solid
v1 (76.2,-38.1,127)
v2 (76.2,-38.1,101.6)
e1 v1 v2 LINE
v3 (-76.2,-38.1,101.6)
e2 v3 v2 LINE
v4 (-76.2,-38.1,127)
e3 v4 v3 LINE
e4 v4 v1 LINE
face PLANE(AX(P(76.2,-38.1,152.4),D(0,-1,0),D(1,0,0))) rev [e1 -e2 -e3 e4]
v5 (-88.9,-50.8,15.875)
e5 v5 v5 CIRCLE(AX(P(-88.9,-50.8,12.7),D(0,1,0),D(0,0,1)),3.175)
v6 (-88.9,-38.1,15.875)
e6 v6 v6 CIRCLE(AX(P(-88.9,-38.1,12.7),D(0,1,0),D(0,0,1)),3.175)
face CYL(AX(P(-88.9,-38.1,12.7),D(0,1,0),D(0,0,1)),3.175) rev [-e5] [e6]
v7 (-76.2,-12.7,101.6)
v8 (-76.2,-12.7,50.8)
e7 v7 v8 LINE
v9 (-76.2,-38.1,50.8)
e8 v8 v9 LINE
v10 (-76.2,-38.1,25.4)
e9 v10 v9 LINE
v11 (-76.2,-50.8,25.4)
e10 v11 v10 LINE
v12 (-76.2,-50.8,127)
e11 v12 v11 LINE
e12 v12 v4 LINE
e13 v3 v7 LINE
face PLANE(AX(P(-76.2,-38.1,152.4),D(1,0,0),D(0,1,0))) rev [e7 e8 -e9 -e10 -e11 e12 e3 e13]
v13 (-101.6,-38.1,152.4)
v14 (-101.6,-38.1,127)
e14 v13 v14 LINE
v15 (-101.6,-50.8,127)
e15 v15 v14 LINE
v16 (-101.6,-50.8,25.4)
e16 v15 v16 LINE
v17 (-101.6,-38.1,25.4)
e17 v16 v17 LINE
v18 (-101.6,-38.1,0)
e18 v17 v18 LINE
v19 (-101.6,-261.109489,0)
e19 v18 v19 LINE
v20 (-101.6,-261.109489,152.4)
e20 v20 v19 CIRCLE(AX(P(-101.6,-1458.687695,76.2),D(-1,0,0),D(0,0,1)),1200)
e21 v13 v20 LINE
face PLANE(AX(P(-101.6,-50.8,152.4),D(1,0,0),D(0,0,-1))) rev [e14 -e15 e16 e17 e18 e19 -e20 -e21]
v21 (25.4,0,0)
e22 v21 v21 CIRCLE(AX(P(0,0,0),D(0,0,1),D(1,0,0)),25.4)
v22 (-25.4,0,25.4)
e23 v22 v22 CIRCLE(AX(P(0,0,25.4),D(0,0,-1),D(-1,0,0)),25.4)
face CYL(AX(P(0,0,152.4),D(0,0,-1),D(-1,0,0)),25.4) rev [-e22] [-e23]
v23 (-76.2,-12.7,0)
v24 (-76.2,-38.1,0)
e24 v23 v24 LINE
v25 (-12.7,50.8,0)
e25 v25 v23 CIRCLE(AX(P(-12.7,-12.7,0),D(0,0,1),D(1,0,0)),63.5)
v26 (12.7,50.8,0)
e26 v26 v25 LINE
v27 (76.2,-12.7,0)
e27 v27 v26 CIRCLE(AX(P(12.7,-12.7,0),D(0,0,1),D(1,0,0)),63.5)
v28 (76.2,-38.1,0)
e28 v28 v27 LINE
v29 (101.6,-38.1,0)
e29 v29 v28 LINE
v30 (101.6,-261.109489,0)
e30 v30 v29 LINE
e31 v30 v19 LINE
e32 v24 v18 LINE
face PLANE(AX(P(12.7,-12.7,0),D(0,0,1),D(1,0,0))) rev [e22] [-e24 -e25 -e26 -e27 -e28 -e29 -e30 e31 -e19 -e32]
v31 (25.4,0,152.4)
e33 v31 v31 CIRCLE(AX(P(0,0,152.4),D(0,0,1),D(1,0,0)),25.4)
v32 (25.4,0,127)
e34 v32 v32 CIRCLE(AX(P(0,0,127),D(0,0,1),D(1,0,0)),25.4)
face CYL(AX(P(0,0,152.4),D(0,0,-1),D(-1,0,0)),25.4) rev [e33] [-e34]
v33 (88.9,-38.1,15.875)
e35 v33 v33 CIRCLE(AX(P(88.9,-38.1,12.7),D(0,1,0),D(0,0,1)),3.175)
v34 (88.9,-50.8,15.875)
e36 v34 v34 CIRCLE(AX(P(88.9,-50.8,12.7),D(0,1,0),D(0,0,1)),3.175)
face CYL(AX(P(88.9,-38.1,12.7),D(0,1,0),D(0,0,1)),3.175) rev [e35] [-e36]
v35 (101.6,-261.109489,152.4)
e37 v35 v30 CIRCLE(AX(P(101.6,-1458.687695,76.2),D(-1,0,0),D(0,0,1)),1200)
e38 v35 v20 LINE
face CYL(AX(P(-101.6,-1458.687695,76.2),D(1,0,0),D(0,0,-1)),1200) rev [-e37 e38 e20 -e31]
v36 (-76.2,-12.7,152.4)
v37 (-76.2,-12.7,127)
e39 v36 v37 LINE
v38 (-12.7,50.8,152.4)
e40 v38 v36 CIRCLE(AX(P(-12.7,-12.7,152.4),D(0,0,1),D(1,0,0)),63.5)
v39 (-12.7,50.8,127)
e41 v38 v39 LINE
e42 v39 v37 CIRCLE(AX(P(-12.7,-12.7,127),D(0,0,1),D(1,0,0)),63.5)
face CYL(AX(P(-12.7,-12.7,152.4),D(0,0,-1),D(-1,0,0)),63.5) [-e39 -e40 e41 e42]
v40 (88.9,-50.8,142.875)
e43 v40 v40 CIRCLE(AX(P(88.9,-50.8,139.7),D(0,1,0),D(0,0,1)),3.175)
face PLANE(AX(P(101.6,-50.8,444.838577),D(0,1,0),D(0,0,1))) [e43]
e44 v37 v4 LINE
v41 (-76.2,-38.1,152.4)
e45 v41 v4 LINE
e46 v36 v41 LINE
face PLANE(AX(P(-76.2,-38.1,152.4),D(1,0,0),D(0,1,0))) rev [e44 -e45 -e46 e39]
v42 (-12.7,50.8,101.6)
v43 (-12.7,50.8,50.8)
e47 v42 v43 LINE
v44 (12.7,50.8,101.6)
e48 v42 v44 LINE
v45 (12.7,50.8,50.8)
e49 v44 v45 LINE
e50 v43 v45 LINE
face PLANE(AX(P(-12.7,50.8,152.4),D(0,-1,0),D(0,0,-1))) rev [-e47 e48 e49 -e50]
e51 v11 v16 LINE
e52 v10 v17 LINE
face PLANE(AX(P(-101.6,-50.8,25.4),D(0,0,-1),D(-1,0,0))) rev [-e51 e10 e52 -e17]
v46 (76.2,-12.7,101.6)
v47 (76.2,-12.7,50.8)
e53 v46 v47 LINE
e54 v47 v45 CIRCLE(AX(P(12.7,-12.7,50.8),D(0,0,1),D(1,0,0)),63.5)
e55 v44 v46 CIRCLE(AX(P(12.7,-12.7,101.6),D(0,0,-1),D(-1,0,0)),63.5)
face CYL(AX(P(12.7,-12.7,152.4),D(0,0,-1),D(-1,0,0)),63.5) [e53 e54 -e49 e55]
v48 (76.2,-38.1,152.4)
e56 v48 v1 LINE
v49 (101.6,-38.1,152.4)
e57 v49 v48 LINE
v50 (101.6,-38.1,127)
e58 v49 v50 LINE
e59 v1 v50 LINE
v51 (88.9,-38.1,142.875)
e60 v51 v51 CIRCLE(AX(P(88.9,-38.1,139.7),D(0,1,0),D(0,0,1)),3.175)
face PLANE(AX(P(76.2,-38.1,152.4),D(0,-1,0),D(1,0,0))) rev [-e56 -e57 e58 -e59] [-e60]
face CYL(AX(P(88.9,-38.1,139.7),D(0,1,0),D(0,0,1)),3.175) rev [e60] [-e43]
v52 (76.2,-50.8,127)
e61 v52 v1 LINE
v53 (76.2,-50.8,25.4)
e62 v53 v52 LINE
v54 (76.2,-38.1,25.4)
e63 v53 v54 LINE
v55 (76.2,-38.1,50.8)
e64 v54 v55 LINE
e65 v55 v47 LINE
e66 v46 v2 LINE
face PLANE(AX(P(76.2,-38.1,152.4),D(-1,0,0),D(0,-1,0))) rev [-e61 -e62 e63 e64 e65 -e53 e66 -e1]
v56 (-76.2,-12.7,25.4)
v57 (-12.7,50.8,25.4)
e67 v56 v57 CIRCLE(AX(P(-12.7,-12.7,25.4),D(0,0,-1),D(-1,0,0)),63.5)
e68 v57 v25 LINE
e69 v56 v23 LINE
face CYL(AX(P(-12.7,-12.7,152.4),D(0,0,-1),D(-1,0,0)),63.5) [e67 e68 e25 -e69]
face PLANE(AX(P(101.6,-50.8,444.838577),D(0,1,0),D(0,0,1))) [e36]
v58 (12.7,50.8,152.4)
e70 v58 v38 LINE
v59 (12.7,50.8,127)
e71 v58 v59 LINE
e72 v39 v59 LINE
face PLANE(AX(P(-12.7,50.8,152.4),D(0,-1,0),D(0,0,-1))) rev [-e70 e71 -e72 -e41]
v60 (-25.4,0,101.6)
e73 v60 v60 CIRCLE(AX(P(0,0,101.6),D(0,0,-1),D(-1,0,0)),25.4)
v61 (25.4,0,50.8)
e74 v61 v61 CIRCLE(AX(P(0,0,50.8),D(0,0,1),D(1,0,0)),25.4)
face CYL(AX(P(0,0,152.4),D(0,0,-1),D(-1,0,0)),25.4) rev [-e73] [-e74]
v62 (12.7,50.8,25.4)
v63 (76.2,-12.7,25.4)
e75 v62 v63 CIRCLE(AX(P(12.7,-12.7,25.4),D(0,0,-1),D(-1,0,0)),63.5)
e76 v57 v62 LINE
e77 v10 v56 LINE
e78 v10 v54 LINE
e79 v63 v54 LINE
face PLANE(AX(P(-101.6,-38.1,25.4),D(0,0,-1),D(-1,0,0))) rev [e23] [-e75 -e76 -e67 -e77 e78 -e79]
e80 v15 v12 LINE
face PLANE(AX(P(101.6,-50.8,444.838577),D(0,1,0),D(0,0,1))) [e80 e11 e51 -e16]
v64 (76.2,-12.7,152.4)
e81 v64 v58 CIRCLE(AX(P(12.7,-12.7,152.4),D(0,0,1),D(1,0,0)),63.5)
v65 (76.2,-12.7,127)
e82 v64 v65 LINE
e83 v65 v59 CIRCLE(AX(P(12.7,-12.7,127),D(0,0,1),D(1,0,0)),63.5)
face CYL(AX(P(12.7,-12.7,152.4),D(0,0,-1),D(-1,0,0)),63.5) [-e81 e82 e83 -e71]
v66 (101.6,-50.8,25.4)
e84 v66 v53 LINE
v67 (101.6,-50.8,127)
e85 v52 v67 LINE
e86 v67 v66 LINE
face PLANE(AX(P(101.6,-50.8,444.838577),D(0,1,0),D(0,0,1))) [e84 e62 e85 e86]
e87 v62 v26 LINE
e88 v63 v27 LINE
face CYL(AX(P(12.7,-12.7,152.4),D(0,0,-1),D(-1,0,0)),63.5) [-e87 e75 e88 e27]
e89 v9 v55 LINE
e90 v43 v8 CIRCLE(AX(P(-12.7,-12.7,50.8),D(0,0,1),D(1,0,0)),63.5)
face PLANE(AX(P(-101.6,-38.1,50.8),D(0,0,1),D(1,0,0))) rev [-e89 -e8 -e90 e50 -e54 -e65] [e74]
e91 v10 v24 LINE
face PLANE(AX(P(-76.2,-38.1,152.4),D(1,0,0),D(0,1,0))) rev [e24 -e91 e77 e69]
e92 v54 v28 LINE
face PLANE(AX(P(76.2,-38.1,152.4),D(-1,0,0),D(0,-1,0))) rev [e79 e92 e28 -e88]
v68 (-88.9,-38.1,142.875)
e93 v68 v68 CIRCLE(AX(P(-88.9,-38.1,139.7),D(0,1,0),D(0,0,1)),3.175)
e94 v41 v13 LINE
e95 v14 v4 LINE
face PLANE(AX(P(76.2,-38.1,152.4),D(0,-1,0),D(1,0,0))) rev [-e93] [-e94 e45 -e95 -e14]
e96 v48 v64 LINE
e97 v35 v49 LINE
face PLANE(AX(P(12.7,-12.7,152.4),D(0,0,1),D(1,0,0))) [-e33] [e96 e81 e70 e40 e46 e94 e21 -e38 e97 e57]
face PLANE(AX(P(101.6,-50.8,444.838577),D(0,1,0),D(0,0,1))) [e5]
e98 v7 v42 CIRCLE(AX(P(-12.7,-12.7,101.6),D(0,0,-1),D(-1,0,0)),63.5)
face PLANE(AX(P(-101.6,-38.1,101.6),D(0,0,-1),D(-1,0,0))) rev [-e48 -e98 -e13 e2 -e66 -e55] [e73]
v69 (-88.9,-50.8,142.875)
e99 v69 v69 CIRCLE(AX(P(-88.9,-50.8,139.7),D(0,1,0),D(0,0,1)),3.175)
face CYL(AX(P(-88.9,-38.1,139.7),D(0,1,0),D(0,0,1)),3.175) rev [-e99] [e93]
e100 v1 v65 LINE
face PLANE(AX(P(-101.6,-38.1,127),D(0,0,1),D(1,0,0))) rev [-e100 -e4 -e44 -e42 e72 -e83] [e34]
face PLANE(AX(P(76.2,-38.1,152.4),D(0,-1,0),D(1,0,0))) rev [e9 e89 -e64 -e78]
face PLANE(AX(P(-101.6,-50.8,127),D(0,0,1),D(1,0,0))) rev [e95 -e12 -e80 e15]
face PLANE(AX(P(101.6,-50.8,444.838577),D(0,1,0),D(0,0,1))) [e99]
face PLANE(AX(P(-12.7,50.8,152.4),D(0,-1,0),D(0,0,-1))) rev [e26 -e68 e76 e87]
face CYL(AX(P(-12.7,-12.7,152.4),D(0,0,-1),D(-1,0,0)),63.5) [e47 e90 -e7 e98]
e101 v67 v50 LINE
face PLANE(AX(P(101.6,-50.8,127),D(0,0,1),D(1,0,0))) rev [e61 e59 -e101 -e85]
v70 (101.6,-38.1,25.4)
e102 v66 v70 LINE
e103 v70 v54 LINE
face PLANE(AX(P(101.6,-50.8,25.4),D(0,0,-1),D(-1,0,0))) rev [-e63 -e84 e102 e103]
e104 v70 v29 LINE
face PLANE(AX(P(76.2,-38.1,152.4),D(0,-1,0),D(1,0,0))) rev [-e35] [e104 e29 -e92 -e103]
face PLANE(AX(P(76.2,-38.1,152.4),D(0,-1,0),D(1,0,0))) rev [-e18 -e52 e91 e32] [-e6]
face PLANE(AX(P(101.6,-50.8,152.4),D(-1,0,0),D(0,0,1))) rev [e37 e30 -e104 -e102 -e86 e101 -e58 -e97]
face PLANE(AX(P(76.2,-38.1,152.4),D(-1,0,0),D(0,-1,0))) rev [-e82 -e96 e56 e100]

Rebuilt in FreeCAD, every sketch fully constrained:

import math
import FreeCAD as App
import Part
import Sketcher

V = App.Vector
Q = App.Units.Quantity

doc = App.newDocument("Part")
body = doc.addObject("PartDesign::Body", "Body")

sketch1 = doc.addObject("Sketcher::SketchObject", "Sketch")
body.addObject(sketch1)
sketch1.AttachmentSupport = (doc.XY_Plane, [""])
sketch1.MapMode = "FlatFace"
sketch1.addGeometry(Part.LineSegment(V(-102, -51, 0), V(102, -51, 0)), False)
sketch1.addGeometry(Part.LineSegment(V(102, -51, 0), V(102, -38, 0)), False)
sketch1.addGeometry(Part.LineSegment(V(102, -38, 0), V(76, -38, 0)), False)
sketch1.addGeometry(Part.LineSegment(V(76, -38, 0), V(76, -13, 0)), False)
sketch1.addGeometry(Part.ArcOfCircle(Part.Circle(V(13, -13, 0), V(0, 0, 1), 64), math.radians(0), math.radians(90)), False)
sketch1.addGeometry(Part.LineSegment(V(13, 51, 0), V(-13, 51, 0)), False)
sketch1.addGeometry(Part.ArcOfCircle(Part.Circle(V(-13, -13, 0), V(0, 0, 1), 64), math.radians(90), math.radians(180)), False)
sketch1.addGeometry(Part.LineSegment(V(-76, -13, 0), V(-76, -38, 0)), False)
sketch1.addGeometry(Part.LineSegment(V(-76, -38, 0), V(-102, -38, 0)), False)
sketch1.addGeometry(Part.LineSegment(V(-102, -38, 0), V(-102, -51, 0)), False)
sketch1.addGeometry(Part.Circle(V(0, 0, 0), V(0, 0, 1), 25), False)
sketch1.addConstraint(Sketcher.Constraint("Coincident", 0, 2, 1, 1))
sketch1.addConstraint(Sketcher.Constraint("Coincident", 1, 2, 2, 1))
sketch1.addConstraint(Sketcher.Constraint("Coincident", 2, 2, 3, 1))
sketch1.addConstraint(Sketcher.Constraint("Tangent", 3, 2, 4, 1))
sketch1.addConstraint(Sketcher.Constraint("Tangent", 4, 2, 5, 1))
sketch1.addConstraint(Sketcher.Constraint("Tangent", 5, 2, 6, 1))
sketch1.addConstraint(Sketcher.Constraint("Tangent", 6, 2, 7, 1))
sketch1.addConstraint(Sketcher.Constraint("Coincident", 7, 2, 8, 1))
sketch1.addConstraint(Sketcher.Constraint("Coincident", 8, 2, 9, 1))
sketch1.addConstraint(Sketcher.Constraint("Coincident", 9, 2, 0, 1))
sketch1.addConstraint(Sketcher.Constraint("Horizontal", 0))
sketch1.addConstraint(Sketcher.Constraint("Vertical", 1))
sketch1.addConstraint(Sketcher.Constraint("Horizontal", 2))
sketch1.addConstraint(Sketcher.Constraint("Vertical", 3))
sketch1.addConstraint(Sketcher.Constraint("Horizontal", 5))
sketch1.addConstraint(Sketcher.Constraint("Vertical", 7))
sketch1.addConstraint(Sketcher.Constraint("Horizontal", 8))
sketch1.addConstraint(Sketcher.Constraint("Vertical", 9))
sketch1.addConstraint(Sketcher.Constraint("Coincident", 10, 3, -1, 1))
sketch1.addConstraint(Sketcher.Constraint("Equal", 4, 6))
sketch1.addConstraint(Sketcher.Constraint("Symmetric", 2, 2, 7, 2, -2))
sketch1.addConstraint(Sketcher.Constraint("Equal", 2, 5))
sketch1.addConstraint(Sketcher.Constraint("Equal", 5, 8))
sketch1.addConstraint(Sketcher.Constraint("Equal", 8, 3))
sketch1.addConstraint(Sketcher.Constraint("Diameter", 10, Q("2 in")))
sketch1.addConstraint(Sketcher.Constraint("Radius", 4, Q("2.5 in")))
sketch1.addConstraint(Sketcher.Constraint("DistanceX", 0, 1, 0, 2, Q("8 in")))
sketch1.addConstraint(Sketcher.Constraint("DistanceY", 1, 1, 1, 2, Q("0.5 in")))
sketch1.addConstraint(Sketcher.Constraint("DistanceY", 0, 2, -1, 1, Q("2 in")))
pad1 = doc.addObject("PartDesign::Pad", "Pad")
body.addObject(pad1)
pad1.Profile = sketch1
pad1.Length = Q("6 in")

sketch2 = doc.addObject("Sketcher::SketchObject", "Sketch001")
body.addObject(sketch2)
sketch2.AttachmentSupport = (doc.YZ_Plane, [""])
sketch2.MapMode = "FlatFace"
sketch2.addGeometry(Part.LineSegment(V(51, 127, 0), V(-38, 127, 0)), False)
sketch2.addGeometry(Part.LineSegment(V(-38, 127, 0), V(-38, 102, 0)), False)
sketch2.addGeometry(Part.LineSegment(V(-38, 102, 0), V(51, 102, 0)), False)
sketch2.addGeometry(Part.LineSegment(V(51, 102, 0), V(51, 127, 0)), False)
sketch2.addGeometry(Part.LineSegment(V(51, 51, 0), V(-38, 51, 0)), False)
sketch2.addGeometry(Part.LineSegment(V(-38, 51, 0), V(-38, 25, 0)), False)
sketch2.addGeometry(Part.LineSegment(V(-38, 25, 0), V(51, 25, 0)), False)
sketch2.addGeometry(Part.LineSegment(V(51, 25, 0), V(51, 51, 0)), False)
sketch2.addConstraint(Sketcher.Constraint("Coincident", 0, 2, 1, 1))
sketch2.addConstraint(Sketcher.Constraint("Coincident", 1, 2, 2, 1))
sketch2.addConstraint(Sketcher.Constraint("Coincident", 2, 2, 3, 1))
sketch2.addConstraint(Sketcher.Constraint("Coincident", 3, 2, 0, 1))
sketch2.addConstraint(Sketcher.Constraint("Coincident", 4, 2, 5, 1))
sketch2.addConstraint(Sketcher.Constraint("Coincident", 5, 2, 6, 1))
sketch2.addConstraint(Sketcher.Constraint("Coincident", 6, 2, 7, 1))
sketch2.addConstraint(Sketcher.Constraint("Coincident", 7, 2, 4, 1))
sketch2.addConstraint(Sketcher.Constraint("Horizontal", 0))
sketch2.addConstraint(Sketcher.Constraint("Vertical", 1))
sketch2.addConstraint(Sketcher.Constraint("Horizontal", 2))
sketch2.addConstraint(Sketcher.Constraint("Vertical", 3))
sketch2.addConstraint(Sketcher.Constraint("Horizontal", 4))
sketch2.addConstraint(Sketcher.Constraint("Vertical", 5))
sketch2.addConstraint(Sketcher.Constraint("Horizontal", 6))
sketch2.addConstraint(Sketcher.Constraint("Vertical", 7))
sketch2.addConstraint(Sketcher.Constraint("Vertical", 1, 2, 4, 2))
sketch2.addConstraint(Sketcher.Constraint("Vertical", 3, 2, 6, 2))
sketch2.addConstraint(Sketcher.Constraint("Equal", 3, 5))
sketch2.addConstraint(Sketcher.Constraint("DistanceY", 1, 2, 1, 1, Q("1 in")))
sketch2.addConstraint(Sketcher.Constraint("DistanceX", 0, 2, 0, 1, Q("3.5 in")))
sketch2.addConstraint(Sketcher.Constraint("DistanceY", -1, 1, 0, 2, Q("5 in")))
sketch2.addConstraint(Sketcher.Constraint("DistanceX", -1, 1, 2, 2, Q("2 in")))
sketch2.addConstraint(Sketcher.Constraint("DistanceY", -1, 1, 4, 2, Q("2 in")))
pocket1 = doc.addObject("PartDesign::Pocket", "Pocket")
body.addObject(pocket1)
pocket1.Profile = sketch2
pocket1.Type = "ThroughAll"
pocket1.Midplane = True

sketch3 = doc.addObject("Sketcher::SketchObject", "Sketch002")
body.addObject(sketch3)
sketch3.AttachmentSupport = (doc.XZ_Plane, [""])
sketch3.MapMode = "FlatFace"
sketch3.AttachmentOffset = App.Placement(V(0, 0, 1.5 * 25.4), App.Rotation())
sketch3.addGeometry(Part.Circle(V(-88.9, 12.7, 0), V(0, 0, 1), 3.2), False)
sketch3.addGeometry(Part.Circle(V(-88.9, 139.7, 0), V(0, 0, 1), 3.2), False)
sketch3.addGeometry(Part.Circle(V(88.9, 12.7, 0), V(0, 0, 1), 3.2), False)
sketch3.addGeometry(Part.Circle(V(88.9, 139.7, 0), V(0, 0, 1), 3.2), False)
sketch3.addConstraint(Sketcher.Constraint("Equal", 0, 1))
sketch3.addConstraint(Sketcher.Constraint("Equal", 1, 2))
sketch3.addConstraint(Sketcher.Constraint("Equal", 2, 3))
sketch3.addConstraint(Sketcher.Constraint("Symmetric", 0, 3, 2, 3, -2))
sketch3.addConstraint(Sketcher.Constraint("Symmetric", 1, 3, 3, 3, -2))
sketch3.addConstraint(Sketcher.Constraint("Vertical", 0, 3, 1, 3))
sketch3.addConstraint(Sketcher.Constraint("Diameter", 0, Q("0.25 in")))
sketch3.addConstraint(Sketcher.Constraint("DistanceY", 0, 3, 1, 3, Q("5 in")))
sketch3.addConstraint(Sketcher.Constraint("DistanceX", 0, 3, 2, 3, Q("7 in")))
sketch3.addConstraint(Sketcher.Constraint("DistanceY", -1, 1, 0, 3, Q("0.5 in")))
doc.recompute()
hole = doc.addObject("PartDesign::Hole", "Hole")
body.addObject(hole)
hole.Profile = sketch3
hole.ThreadType = "None"
hole.Diameter = Q("0.25 in")
hole.DepthType = "ThroughAll"
hole.Reversed = True

sketch4 = doc.addObject("Sketcher::SketchObject", "Sketch003")
body.addObject(sketch4)
sketch4.AttachmentSupport = (doc.XZ_Plane, [""])
sketch4.MapMode = "FlatFace"
sketch4.AttachmentOffset = App.Placement(V(0, 0, 1.5 * 25.4), App.Rotation())
sketch4.addGeometry(Part.LineSegment(V(-102, 25, 0), V(-102, 127, 0)), False)
sketch4.addGeometry(Part.LineSegment(V(-102, 127, 0), V(-76, 127, 0)), False)
sketch4.addGeometry(Part.LineSegment(V(-76, 127, 0), V(-76, 25, 0)), False)
sketch4.addGeometry(Part.LineSegment(V(-76, 25, 0), V(-102, 25, 0)), False)
sketch4.addGeometry(Part.LineSegment(V(76, 25, 0), V(76, 127, 0)), False)
sketch4.addGeometry(Part.LineSegment(V(76, 127, 0), V(102, 127, 0)), False)
sketch4.addGeometry(Part.LineSegment(V(102, 127, 0), V(102, 25, 0)), False)
sketch4.addGeometry(Part.LineSegment(V(102, 25, 0), V(76, 25, 0)), False)
sketch4.addConstraint(Sketcher.Constraint("Coincident", 0, 2, 1, 1))
sketch4.addConstraint(Sketcher.Constraint("Coincident", 1, 2, 2, 1))
sketch4.addConstraint(Sketcher.Constraint("Coincident", 2, 2, 3, 1))
sketch4.addConstraint(Sketcher.Constraint("Coincident", 3, 2, 0, 1))
sketch4.addConstraint(Sketcher.Constraint("Coincident", 4, 2, 5, 1))
sketch4.addConstraint(Sketcher.Constraint("Coincident", 5, 2, 6, 1))
sketch4.addConstraint(Sketcher.Constraint("Coincident", 6, 2, 7, 1))
sketch4.addConstraint(Sketcher.Constraint("Coincident", 7, 2, 4, 1))
sketch4.addConstraint(Sketcher.Constraint("Vertical", 0))
sketch4.addConstraint(Sketcher.Constraint("Horizontal", 1))
sketch4.addConstraint(Sketcher.Constraint("Vertical", 2))
sketch4.addConstraint(Sketcher.Constraint("Horizontal", 3))
sketch4.addConstraint(Sketcher.Constraint("Vertical", 4))
sketch4.addConstraint(Sketcher.Constraint("Horizontal", 5))
sketch4.addConstraint(Sketcher.Constraint("Vertical", 6))
sketch4.addConstraint(Sketcher.Constraint("Horizontal", 7))
sketch4.addConstraint(Sketcher.Constraint("Symmetric", 1, 2, 4, 2, -2))
sketch4.addConstraint(Sketcher.Constraint("Symmetric", 3, 2, 6, 2, -2))
sketch4.addConstraint(Sketcher.Constraint("DistanceX", 1, 1, 1, 2, Q("1 in")))
sketch4.addConstraint(Sketcher.Constraint("DistanceY", 0, 1, 0, 2, Q("4 in")))
sketch4.addConstraint(Sketcher.Constraint("DistanceX", 0, 2, -1, 1, Q("4 in")))
sketch4.addConstraint(Sketcher.Constraint("DistanceY", -1, 1, 0, 2, Q("5 in")))
pocket2 = doc.addObject("PartDesign::Pocket", "Pocket001")
body.addObject(pocket2)
pocket2.Profile = sketch4
pocket2.Type = "ThroughAll"
pocket2.Reversed = True

sketch5 = doc.addObject("Sketcher::SketchObject", "Sketch004")
body.addObject(sketch5)
sketch5.AttachmentSupport = (doc.XY_Plane, [""])
sketch5.MapMode = "FlatFace"
sketch5.addGeometry(Part.LineSegment(V(102, -51, 0), V(102, -261, 0)), False)
sketch5.addGeometry(Part.LineSegment(V(102, -261, 0), V(-102, -261, 0)), False)
sketch5.addGeometry(Part.LineSegment(V(-102, -261, 0), V(-102, -51, 0)), False)
sketch5.addGeometry(Part.LineSegment(V(-102, -51, 0), V(102, -51, 0)), False)
sketch5.addConstraint(Sketcher.Constraint("Coincident", 0, 2, 1, 1))
sketch5.addConstraint(Sketcher.Constraint("Coincident", 1, 2, 2, 1))
sketch5.addConstraint(Sketcher.Constraint("Coincident", 2, 2, 3, 1))
sketch5.addConstraint(Sketcher.Constraint("Coincident", 3, 2, 0, 1))
sketch5.addConstraint(Sketcher.Constraint("Vertical", 0))
sketch5.addConstraint(Sketcher.Constraint("Horizontal", 1))
sketch5.addConstraint(Sketcher.Constraint("Vertical", 2))
sketch5.addConstraint(Sketcher.Constraint("Horizontal", 3))
sketch5.addConstraint(Sketcher.Constraint("DistanceX", 1, 2, 1, 1, Q("8 in")))
sketch5.addConstraint(Sketcher.Constraint("DistanceX", -1, 1, 0, 2, Q("4 in")))
sketch5.addConstraint(Sketcher.Constraint("DistanceY", 2, 2, -1, 1, Q("2 in")))
sketch5.addConstraint(Sketcher.Constraint("DistanceY", 0, 2, 0, 1, 210.309489))
pad2 = doc.addObject("PartDesign::Pad", "Pad001")
body.addObject(pad2)
pad2.Profile = sketch5
pad2.Length = Q("6 in")

sketch6 = doc.addObject("Sketcher::SketchObject", "Sketch005")
body.addObject(sketch6)
sketch6.AttachmentSupport = (doc.YZ_Plane, [""])
sketch6.MapMode = "FlatFace"
sketch6.AttachmentOffset = App.Placement(V(0, 0, 4 * 25.4), App.Rotation())
sketch6.addGeometry(Part.LineSegment(V(-261, 152, 0), V(-261, 0, 0)), False)
sketch6.addGeometry(Part.ArcOfCircle(Part.Circle(V(-1459, 76, 0), V(0, 0, 1), 1200), math.radians(-3.64), math.radians(3.64)), False)
sketch6.addConstraint(Sketcher.Constraint("Coincident", 0, 1, 1, 2))
sketch6.addConstraint(Sketcher.Constraint("Coincident", 1, 1, 0, 2))
sketch6.addConstraint(Sketcher.Constraint("Vertical", 0))
sketch6.addConstraint(Sketcher.Constraint("DistanceY", 0, 2, 0, 1, Q("6 in")))
sketch6.addConstraint(Sketcher.Constraint("DistanceY", -1, 1, 1, 3, Q("3 in")))
sketch6.addConstraint(Sketcher.Constraint("Radius", 1, 1200.0))
sketch6.addConstraint(Sketcher.Constraint("DistanceX", 0, 1, -1, 1, 261.109489))
pocket3 = doc.addObject("PartDesign::Pocket", "Pocket002")
body.addObject(pocket3)
pocket3.Profile = sketch6
pocket3.Type = "ThroughAll"

doc.recompute()
